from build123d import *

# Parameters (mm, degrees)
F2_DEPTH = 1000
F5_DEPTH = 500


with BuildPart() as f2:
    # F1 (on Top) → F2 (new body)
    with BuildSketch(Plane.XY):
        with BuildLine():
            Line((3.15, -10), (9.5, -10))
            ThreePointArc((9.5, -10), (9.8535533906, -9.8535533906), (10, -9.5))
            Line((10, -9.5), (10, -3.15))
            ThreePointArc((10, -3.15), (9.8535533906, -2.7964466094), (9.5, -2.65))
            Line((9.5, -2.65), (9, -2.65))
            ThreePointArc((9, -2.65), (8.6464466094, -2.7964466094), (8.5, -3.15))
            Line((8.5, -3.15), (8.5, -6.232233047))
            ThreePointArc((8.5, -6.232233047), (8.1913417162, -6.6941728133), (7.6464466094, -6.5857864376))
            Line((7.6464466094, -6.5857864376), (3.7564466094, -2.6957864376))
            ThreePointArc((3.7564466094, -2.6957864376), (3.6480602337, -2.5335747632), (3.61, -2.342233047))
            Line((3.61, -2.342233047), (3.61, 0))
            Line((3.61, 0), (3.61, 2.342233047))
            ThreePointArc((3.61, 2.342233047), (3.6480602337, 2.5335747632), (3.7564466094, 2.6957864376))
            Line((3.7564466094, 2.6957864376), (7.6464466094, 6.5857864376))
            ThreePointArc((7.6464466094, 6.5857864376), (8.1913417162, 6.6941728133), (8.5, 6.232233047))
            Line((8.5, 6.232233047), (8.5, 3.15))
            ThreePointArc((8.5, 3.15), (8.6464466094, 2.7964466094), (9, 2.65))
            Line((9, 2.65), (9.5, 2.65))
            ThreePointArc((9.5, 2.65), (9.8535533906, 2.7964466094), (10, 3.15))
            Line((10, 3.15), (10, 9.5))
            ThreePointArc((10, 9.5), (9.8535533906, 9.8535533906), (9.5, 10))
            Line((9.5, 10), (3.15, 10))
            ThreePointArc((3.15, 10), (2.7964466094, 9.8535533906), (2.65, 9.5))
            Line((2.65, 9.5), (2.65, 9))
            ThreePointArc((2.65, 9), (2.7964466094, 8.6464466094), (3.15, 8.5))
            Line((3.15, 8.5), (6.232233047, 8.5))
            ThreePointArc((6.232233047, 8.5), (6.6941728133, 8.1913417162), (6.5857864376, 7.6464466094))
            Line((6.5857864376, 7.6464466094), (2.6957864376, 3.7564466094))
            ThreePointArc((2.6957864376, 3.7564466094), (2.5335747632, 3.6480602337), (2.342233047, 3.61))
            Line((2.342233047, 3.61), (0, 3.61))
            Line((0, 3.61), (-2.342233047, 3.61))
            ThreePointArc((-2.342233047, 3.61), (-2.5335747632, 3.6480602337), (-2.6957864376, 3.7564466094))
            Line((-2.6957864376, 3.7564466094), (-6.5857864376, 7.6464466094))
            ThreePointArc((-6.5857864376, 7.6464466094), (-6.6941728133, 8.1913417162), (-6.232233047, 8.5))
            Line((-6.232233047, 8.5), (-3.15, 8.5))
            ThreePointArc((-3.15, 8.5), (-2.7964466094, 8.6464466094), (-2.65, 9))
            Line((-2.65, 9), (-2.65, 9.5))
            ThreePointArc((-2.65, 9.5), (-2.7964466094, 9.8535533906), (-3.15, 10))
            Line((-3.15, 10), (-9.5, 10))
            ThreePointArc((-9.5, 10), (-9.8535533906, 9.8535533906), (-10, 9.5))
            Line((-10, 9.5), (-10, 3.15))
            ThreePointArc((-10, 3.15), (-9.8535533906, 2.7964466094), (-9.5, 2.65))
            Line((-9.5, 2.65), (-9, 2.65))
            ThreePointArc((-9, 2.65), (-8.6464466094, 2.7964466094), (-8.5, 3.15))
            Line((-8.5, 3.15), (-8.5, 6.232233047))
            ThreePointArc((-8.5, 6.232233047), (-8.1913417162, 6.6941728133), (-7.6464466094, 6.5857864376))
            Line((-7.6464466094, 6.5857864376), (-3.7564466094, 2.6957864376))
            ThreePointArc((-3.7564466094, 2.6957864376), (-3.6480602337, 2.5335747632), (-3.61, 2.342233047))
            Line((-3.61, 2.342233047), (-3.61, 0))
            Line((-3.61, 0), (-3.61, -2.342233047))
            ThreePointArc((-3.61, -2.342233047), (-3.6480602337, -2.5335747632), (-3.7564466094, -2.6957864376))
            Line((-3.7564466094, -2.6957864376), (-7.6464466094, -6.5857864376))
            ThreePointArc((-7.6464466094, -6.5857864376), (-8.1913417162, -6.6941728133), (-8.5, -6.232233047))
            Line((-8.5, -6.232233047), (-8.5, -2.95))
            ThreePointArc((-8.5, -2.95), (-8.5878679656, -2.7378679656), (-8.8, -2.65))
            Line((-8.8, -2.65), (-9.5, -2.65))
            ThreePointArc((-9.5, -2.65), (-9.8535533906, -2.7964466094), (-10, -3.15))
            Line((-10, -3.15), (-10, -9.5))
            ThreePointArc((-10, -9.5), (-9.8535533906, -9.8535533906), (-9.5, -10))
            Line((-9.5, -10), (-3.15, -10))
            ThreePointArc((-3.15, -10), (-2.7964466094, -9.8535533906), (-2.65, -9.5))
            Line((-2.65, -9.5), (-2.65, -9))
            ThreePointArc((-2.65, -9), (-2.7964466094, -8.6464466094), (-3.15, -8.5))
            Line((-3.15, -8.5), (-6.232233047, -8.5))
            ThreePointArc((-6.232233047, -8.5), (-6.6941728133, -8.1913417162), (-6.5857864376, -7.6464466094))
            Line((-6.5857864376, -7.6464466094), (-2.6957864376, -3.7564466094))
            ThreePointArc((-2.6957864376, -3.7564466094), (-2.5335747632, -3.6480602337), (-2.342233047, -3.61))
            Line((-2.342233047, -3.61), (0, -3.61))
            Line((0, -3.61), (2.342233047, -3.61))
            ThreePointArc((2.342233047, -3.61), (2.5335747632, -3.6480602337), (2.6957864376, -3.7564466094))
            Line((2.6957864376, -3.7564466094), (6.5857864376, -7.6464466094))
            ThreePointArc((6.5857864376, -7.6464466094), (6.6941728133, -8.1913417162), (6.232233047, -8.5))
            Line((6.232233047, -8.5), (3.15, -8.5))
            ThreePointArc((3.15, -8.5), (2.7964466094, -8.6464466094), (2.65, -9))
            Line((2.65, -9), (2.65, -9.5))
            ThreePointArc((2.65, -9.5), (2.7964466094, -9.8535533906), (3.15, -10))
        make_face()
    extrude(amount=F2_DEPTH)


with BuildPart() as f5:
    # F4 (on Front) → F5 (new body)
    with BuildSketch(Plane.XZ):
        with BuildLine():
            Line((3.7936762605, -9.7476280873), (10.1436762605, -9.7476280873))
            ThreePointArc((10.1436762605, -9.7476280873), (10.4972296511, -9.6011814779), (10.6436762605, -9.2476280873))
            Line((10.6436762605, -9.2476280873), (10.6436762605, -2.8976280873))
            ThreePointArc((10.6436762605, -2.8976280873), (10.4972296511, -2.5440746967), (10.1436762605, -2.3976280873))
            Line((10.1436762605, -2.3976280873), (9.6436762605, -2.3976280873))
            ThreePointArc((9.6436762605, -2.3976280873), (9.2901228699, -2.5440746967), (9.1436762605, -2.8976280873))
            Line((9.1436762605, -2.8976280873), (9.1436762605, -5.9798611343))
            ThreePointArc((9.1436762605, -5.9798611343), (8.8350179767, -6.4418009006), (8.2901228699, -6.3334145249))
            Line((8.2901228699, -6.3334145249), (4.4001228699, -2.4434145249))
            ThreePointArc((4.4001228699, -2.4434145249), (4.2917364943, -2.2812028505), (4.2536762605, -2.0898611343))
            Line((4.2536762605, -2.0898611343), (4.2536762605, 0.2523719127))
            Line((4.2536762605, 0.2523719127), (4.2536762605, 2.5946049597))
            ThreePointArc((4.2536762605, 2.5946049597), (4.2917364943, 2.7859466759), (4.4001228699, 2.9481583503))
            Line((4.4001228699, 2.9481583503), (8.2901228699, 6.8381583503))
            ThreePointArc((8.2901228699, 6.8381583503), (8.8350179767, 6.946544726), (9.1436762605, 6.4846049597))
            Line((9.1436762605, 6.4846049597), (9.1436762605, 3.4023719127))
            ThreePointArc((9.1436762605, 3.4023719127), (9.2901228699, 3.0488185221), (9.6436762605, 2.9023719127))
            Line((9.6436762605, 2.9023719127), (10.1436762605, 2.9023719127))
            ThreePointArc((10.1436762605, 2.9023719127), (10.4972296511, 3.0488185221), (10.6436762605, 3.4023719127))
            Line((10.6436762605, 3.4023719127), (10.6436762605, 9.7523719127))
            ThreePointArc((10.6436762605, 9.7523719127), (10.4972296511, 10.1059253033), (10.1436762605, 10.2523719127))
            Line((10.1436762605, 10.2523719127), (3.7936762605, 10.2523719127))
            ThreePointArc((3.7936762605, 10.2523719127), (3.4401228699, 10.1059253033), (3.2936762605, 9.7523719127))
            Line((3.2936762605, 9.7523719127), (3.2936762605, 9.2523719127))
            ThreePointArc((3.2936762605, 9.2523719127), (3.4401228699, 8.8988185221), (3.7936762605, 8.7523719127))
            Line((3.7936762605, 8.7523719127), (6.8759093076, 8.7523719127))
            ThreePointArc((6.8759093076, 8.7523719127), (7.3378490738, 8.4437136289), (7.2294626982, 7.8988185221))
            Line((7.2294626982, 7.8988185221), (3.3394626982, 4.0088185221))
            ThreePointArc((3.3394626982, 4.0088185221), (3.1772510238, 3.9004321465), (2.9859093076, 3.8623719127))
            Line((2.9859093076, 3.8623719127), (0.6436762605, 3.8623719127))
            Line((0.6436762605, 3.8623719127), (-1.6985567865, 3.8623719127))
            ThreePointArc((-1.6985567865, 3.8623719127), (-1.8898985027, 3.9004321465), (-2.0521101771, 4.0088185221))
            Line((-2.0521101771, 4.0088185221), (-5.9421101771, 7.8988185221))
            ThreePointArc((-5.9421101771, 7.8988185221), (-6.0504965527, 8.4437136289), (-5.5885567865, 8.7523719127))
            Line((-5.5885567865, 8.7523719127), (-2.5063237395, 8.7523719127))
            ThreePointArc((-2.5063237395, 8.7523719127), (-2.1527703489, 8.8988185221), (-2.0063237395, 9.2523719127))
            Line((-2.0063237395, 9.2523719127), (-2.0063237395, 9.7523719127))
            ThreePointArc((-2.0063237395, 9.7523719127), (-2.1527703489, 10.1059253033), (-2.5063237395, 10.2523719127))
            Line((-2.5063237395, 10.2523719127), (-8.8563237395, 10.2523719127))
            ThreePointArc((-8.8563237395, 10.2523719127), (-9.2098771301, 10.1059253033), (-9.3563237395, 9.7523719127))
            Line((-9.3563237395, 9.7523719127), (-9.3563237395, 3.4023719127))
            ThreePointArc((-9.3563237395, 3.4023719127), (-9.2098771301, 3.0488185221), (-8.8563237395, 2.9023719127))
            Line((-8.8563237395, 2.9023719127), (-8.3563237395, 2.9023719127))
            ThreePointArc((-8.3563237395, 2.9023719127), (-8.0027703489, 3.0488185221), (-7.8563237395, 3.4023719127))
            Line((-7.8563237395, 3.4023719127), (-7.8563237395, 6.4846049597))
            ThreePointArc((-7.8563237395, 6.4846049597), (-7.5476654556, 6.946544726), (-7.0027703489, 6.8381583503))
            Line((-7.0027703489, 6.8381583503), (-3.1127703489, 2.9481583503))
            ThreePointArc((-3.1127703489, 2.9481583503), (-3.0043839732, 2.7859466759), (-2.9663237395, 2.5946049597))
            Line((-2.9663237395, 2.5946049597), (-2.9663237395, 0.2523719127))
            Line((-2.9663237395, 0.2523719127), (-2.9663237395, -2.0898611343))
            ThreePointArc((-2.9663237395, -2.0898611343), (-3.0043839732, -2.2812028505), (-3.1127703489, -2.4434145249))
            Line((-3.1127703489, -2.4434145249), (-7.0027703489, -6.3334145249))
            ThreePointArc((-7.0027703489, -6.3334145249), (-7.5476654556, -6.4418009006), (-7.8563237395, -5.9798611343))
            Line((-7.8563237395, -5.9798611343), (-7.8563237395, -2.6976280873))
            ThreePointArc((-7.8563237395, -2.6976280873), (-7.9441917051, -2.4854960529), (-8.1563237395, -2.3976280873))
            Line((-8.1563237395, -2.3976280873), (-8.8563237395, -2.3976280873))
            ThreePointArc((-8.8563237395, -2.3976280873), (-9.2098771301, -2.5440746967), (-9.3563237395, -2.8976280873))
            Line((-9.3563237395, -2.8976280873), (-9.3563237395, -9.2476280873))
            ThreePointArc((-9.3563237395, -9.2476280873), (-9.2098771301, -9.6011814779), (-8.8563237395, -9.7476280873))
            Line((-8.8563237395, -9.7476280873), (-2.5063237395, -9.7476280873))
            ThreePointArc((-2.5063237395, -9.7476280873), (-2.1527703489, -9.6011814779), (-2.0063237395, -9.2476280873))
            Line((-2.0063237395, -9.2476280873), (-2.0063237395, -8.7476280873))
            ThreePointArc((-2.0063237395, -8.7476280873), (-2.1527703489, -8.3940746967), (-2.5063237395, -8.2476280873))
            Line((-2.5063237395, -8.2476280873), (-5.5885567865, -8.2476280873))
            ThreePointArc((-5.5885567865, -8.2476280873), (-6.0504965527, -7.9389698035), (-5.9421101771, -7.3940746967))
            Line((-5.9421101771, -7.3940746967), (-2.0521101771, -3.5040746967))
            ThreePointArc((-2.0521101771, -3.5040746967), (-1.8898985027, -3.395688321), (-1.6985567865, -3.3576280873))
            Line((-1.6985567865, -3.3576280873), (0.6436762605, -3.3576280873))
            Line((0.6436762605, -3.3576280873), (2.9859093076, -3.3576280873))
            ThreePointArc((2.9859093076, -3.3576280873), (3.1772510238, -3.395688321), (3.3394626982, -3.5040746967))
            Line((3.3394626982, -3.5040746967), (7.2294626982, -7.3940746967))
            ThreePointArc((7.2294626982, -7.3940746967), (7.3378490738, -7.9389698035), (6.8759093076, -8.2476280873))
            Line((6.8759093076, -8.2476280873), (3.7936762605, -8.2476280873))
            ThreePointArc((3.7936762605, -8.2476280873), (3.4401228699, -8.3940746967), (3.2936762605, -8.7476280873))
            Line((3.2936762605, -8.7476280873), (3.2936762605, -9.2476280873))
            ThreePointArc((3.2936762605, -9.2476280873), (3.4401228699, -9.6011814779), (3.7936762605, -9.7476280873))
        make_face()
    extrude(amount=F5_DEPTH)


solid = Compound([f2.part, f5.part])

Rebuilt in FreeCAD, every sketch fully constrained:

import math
import FreeCAD as App
import Part
import Sketcher

doc = App.newDocument("Part")
params = doc.addObject("Spreadsheet::Sheet", "Params")
for row, (alias, value) in enumerate([
    ("sketch1_radius", "0.5 mm"),
    ("sketch1_radius2", "0.3 mm"),
    ("sketch1_width", "0.5 mm"),
    ("sketch1_width2", "6.35 mm"),
    ("pad1_length", "1000 mm"),
    ("sketch2_radius", "0.5 mm"),
    ("sketch2_radius2", "0.3 mm"),
    ("sketch2_width", "0.5 mm"),
    ("sketch2_width2", "6.35 mm"),
    ("pad2_length", "500 mm"),
], start=1):
    params.set(f"A{row}", alias)
    params.set(f"B{row}", "=" + value)
    params.setAlias(f"B{row}", alias)

body = doc.addObject("PartDesign::Body", "Body")

# Sketch on XY plane
sketch1 = body.newObject("Sketcher::SketchObject", "Sketch")
sketch1.AttachmentSupport = (doc.getObject("XY_Plane"), [""])
sketch1.MapMode = "FlatFace"
sketch1.addGeometry([
    Part.LineSegment(App.Vector(3.15, -10, 0), App.Vector(9.5, -10, 0)),  # 0
    Part.ArcOfCircle(Part.Circle(App.Vector(9.5, -9.5, 0), App.Vector(0, 0, 1), 0.5), math.radians(-90), math.radians(0)),  # 1
    Part.LineSegment(App.Vector(10, -9.5, 0), App.Vector(10, -3.15, 0)),  # 2
    Part.ArcOfCircle(Part.Circle(App.Vector(9.5, -3.15, 0), App.Vector(0, 0, 1), 0.5), math.radians(0), math.radians(90)),  # 3
    Part.LineSegment(App.Vector(9.5, -2.65, 0), App.Vector(9, -2.65, 0)),  # 4
    Part.ArcOfCircle(Part.Circle(App.Vector(9, -3.15, 0), App.Vector(0, 0, 1), 0.5), math.radians(90), math.radians(180)),  # 5
    Part.LineSegment(App.Vector(8.5, -3.15, 0), App.Vector(8.5, -6.232233, 0)),  # 6
    Part.ArcOfCircle(Part.Circle(App.Vector(8, -6.232233, 0), App.Vector(0, 0, 1), 0.5), math.radians(-135), math.radians(0)),  # 7
    Part.LineSegment(App.Vector(7.646447, -6.585786, 0), App.Vector(3.756447, -2.695786, 0)),  # 8
    Part.ArcOfCircle(Part.Circle(App.Vector(4.11, -2.342233, 0), App.Vector(0, 0, 1), 0.5), math.radians(180), math.radians(225)),  # 9
    Part.LineSegment(App.Vector(3.61, -2.342233, 0), App.Vector(3.61, 2.342233, 0)),  # 10
    Part.ArcOfCircle(Part.Circle(App.Vector(4.11, 2.342233, 0), App.Vector(0, 0, 1), 0.5), math.radians(135), math.radians(180)),  # 11
    Part.LineSegment(App.Vector(3.756447, 2.695786, 0), App.Vector(7.646447, 6.585786, 0)),  # 12
    Part.ArcOfCircle(Part.Circle(App.Vector(8, 6.232233, 0), App.Vector(0, 0, 1), 0.5), math.radians(0), math.radians(135)),  # 13
    Part.LineSegment(App.Vector(8.5, 6.232233, 0), App.Vector(8.5, 3.15, 0)),  # 14
    Part.ArcOfCircle(Part.Circle(App.Vector(9, 3.15, 0), App.Vector(0, 0, 1), 0.5), math.radians(180), math.radians(270)),  # 15
    Part.LineSegment(App.Vector(9, 2.65, 0), App.Vector(9.5, 2.65, 0)),  # 16
    Part.ArcOfCircle(Part.Circle(App.Vector(9.5, 3.15, 0), App.Vector(0, 0, 1), 0.5), math.radians(-90), math.radians(0)),  # 17
    Part.LineSegment(App.Vector(10, 3.15, 0), App.Vector(10, 9.5, 0)),  # 18
    Part.ArcOfCircle(Part.Circle(App.Vector(9.5, 9.5, 0), App.Vector(0, 0, 1), 0.5), math.radians(0), math.radians(90)),  # 19
    Part.LineSegment(App.Vector(9.5, 10, 0), App.Vector(3.15, 10, 0)),  # 20
    Part.ArcOfCircle(Part.Circle(App.Vector(3.15, 9.5, 0), App.Vector(0, 0, 1), 0.5), math.radians(90), math.radians(180)),  # 21
    Part.LineSegment(App.Vector(2.65, 9.5, 0), App.Vector(2.65, 9, 0)),  # 22
    Part.ArcOfCircle(Part.Circle(App.Vector(3.15, 9, 0), App.Vector(0, 0, 1), 0.5), math.radians(180), math.radians(270)),  # 23
    Part.LineSegment(App.Vector(3.15, 8.5, 0), App.Vector(6.232233, 8.5, 0)),  # 24
    Part.ArcOfCircle(Part.Circle(App.Vector(6.232233, 8, 0), App.Vector(0, 0, 1), 0.5), math.radians(-45), math.radians(90)),  # 25
    Part.LineSegment(App.Vector(6.585786, 7.646447, 0), App.Vector(2.695786, 3.756447, 0)),  # 26
    Part.ArcOfCircle(Part.Circle(App.Vector(2.342233, 4.11, 0), App.Vector(0, 0, 1), 0.5), math.radians(-90), math.radians(-45)),  # 27
    Part.LineSegment(App.Vector(2.342233, 3.61, 0), App.Vector(-2.342233, 3.61, 0)),  # 28
    Part.ArcOfCircle(Part.Circle(App.Vector(-2.342233, 4.11, 0), App.Vector(0, 0, 1), 0.5), math.radians(-135), math.radians(-90)),  # 29
    Part.LineSegment(App.Vector(-2.695786, 3.756447, 0), App.Vector(-6.585786, 7.646447, 0)),  # 30
    Part.ArcOfCircle(Part.Circle(App.Vector(-6.232233, 8, 0), App.Vector(0, 0, 1), 0.5), math.radians(90), math.radians(225)),  # 31
    Part.LineSegment(App.Vector(-6.232233, 8.5, 0), App.Vector(-3.15, 8.5, 0)),  # 32
    Part.ArcOfCircle(Part.Circle(App.Vector(-3.15, 9, 0), App.Vector(0, 0, 1), 0.5), math.radians(-90), math.radians(0)),  # 33
    Part.LineSegment(App.Vector(-2.65, 9, 0), App.Vector(-2.65, 9.5, 0)),  # 34
    Part.ArcOfCircle(Part.Circle(App.Vector(-3.15, 9.5, 0), App.Vector(0, 0, 1), 0.5), math.radians(0), math.radians(90)),  # 35
    Part.LineSegment(App.Vector(-3.15, 10, 0), App.Vector(-9.5, 10, 0)),  # 36
    Part.ArcOfCircle(Part.Circle(App.Vector(-9.5, 9.5, 0), App.Vector(0, 0, 1), 0.5), math.radians(90), math.radians(180)),  # 37
    Part.LineSegment(App.Vector(-10, 9.5, 0), App.Vector(-10, 3.15, 0)),  # 38
    Part.ArcOfCircle(Part.Circle(App.Vector(-9.5, 3.15, 0), App.Vector(0, 0, 1), 0.5), math.radians(180), math.radians(270)),  # 39
    Part.LineSegment(App.Vector(-9.5, 2.65, 0), App.Vector(-9, 2.65, 0)),  # 40
    Part.ArcOfCircle(Part.Circle(App.Vector(-9, 3.15, 0), App.Vector(0, 0, 1), 0.5), math.radians(-90), math.radians(0)),  # 41
    Part.LineSegment(App.Vector(-8.5, 3.15, 0), App.Vector(-8.5, 6.232233, 0)),  # 42
    Part.ArcOfCircle(Part.Circle(App.Vector(-8, 6.232233, 0), App.Vector(0, 0, 1), 0.5), math.radians(45), math.radians(180)),  # 43
    Part.LineSegment(App.Vector(-7.646447, 6.585786, 0), App.Vector(-3.756447, 2.695786, 0)),  # 44
    Part.ArcOfCircle(Part.Circle(App.Vector(-4.11, 2.342233, 0), App.Vector(0, 0, 1), 0.5), math.radians(0), math.radians(45)),  # 45
    Part.LineSegment(App.Vector(-3.61, 2.342233, 0), App.Vector(-3.61, -2.342233, 0)),  # 46
    Part.ArcOfCircle(Part.Circle(App.Vector(-4.11, -2.342233, 0), App.Vector(0, 0, 1), 0.5), math.radians(-45), math.radians(0)),  # 47
    Part.LineSegment(App.Vector(-3.756447, -2.695786, 0), App.Vector(-7.646447, -6.585786, 0)),  # 48
    Part.ArcOfCircle(Part.Circle(App.Vector(-8, -6.232233, 0), App.Vector(0, 0, 1), 0.5), math.radians(180), math.radians(315)),  # 49
    Part.LineSegment(App.Vector(-8.5, -6.232233, 0), App.Vector(-8.5, -2.95, 0)),  # 50
    Part.ArcOfCircle(Part.Circle(App.Vector(-8.8, -2.95, 0), App.Vector(0, 0, 1), 0.3), math.radians(0), math.radians(90)),  # 51
    Part.LineSegment(App.Vector(-8.8, -2.65, 0), App.Vector(-9.5, -2.65, 0)),  # 52
    Part.ArcOfCircle(Part.Circle(App.Vector(-9.5, -3.15, 0), App.Vector(0, 0, 1), 0.5), math.radians(90), math.radians(180)),  # 53
    Part.LineSegment(App.Vector(-10, -3.15, 0), App.Vector(-10, -9.5, 0)),  # 54
    Part.ArcOfCircle(Part.Circle(App.Vector(-9.5, -9.5, 0), App.Vector(0, 0, 1), 0.5), math.radians(180), math.radians(270)),  # 55
    Part.LineSegment(App.Vector(-9.5, -10, 0), App.Vector(-3.15, -10, 0)),  # 56
    Part.ArcOfCircle(Part.Circle(App.Vector(-3.15, -9.5, 0), App.Vector(0, 0, 1), 0.5), math.radians(-90), math.radians(0)),  # 57
    Part.LineSegment(App.Vector(-2.65, -9.5, 0), App.Vector(-2.65, -9, 0)),  # 58
    Part.ArcOfCircle(Part.Circle(App.Vector(-3.15, -9, 0), App.Vector(0, 0, 1), 0.5), math.radians(0), math.radians(90)),  # 59
    Part.LineSegment(App.Vector(-3.15, -8.5, 0), App.Vector(-6.232233, -8.5, 0)),  # 60
    Part.ArcOfCircle(Part.Circle(App.Vector(-6.232233, -8, 0), App.Vector(0, 0, 1), 0.5), math.radians(135), math.radians(270)),  # 61
    Part.LineSegment(App.Vector(-6.585786, -7.646447, 0), App.Vector(-2.695786, -3.756447, 0)),  # 62
    Part.ArcOfCircle(Part.Circle(App.Vector(-2.342233, -4.11, 0), App.Vector(0, 0, 1), 0.5), math.radians(90), math.radians(135)),  # 63
    Part.LineSegment(App.Vector(-2.342233, -3.61, 0), App.Vector(2.342233, -3.61, 0)),  # 64
    Part.ArcOfCircle(Part.Circle(App.Vector(2.342233, -4.11, 0), App.Vector(0, 0, 1), 0.5), math.radians(45), math.radians(90)),  # 65
    Part.LineSegment(App.Vector(2.695786, -3.756447, 0), App.Vector(6.585786, -7.646447, 0)),  # 66
    Part.ArcOfCircle(Part.Circle(App.Vector(6.232233, -8, 0), App.Vector(0, 0, 1), 0.5), math.radians(-90), math.radians(45)),  # 67
    Part.LineSegment(App.Vector(6.232233, -8.5, 0), App.Vector(3.15, -8.5, 0)),  # 68
    Part.ArcOfCircle(Part.Circle(App.Vector(3.15, -9, 0), App.Vector(0, 0, 1), 0.5), math.radians(90), math.radians(180)),  # 69
    Part.LineSegment(App.Vector(2.65, -9, 0), App.Vector(2.65, -9.5, 0)),  # 70
    Part.ArcOfCircle(Part.Circle(App.Vector(3.15, -9.5, 0), App.Vector(0, 0, 1), 0.5), math.radians(180), math.radians(270)),  # 71
], False)
sketch1.addConstraint([
    Sketcher.Constraint("Tangent", 0, 2, 1, 1),
    Sketcher.Constraint("Tangent", 1, 2, 2, 1),
    Sketcher.Constraint("Tangent", 2, 2, 3, 1),
    Sketcher.Constraint("Tangent", 3, 2, 4, 1),
    Sketcher.Constraint("Tangent", 4, 2, 5, 1),
    Sketcher.Constraint("Tangent", 5, 2, 6, 1),
    Sketcher.Constraint("Tangent", 6, 2, 7, 2),
    Sketcher.Constraint("Tangent", 7, 1, 8, 1),
    Sketcher.Constraint("Tangent", 8, 2, 9, 2),
    Sketcher.Constraint("Tangent", 9, 1, 10, 1),
    Sketcher.Constraint("Tangent", 10, 2, 11, 2),
    Sketcher.Constraint("Tangent", 11, 1, 12, 1),
    Sketcher.Constraint("Tangent", 12, 2, 13, 2),
    Sketcher.Constraint("Tangent", 13, 1, 14, 1),
    Sketcher.Constraint("Tangent", 14, 2, 15, 1),
    Sketcher.Constraint("Tangent", 15, 2, 16, 1),
    Sketcher.Constraint("Tangent", 16, 2, 17, 1),
    Sketcher.Constraint("Tangent", 17, 2, 18, 1),
    Sketcher.Constraint("Tangent", 18, 2, 19, 1),
    Sketcher.Constraint("Tangent", 19, 2, 20, 1),
    Sketcher.Constraint("Tangent", 20, 2, 21, 1),
    Sketcher.Constraint("Tangent", 21, 2, 22, 1),
    Sketcher.Constraint("Tangent", 22, 2, 23, 1),
    Sketcher.Constraint("Tangent", 23, 2, 24, 1),
    Sketcher.Constraint("Tangent", 24, 2, 25, 2),
    Sketcher.Constraint("Tangent", 25, 1, 26, 1),
    Sketcher.Constraint("Tangent", 26, 2, 27, 2),
    Sketcher.Constraint("Tangent", 27, 1, 28, 1),
    Sketcher.Constraint("Tangent", 28, 2, 29, 2),
    Sketcher.Constraint("Tangent", 29, 1, 30, 1),
    Sketcher.Constraint("Tangent", 30, 2, 31, 2),
    Sketcher.Constraint("Tangent", 31, 1, 32, 1),
    Sketcher.Constraint("Tangent", 32, 2, 33, 1),
    Sketcher.Constraint("Tangent", 33, 2, 34, 1),
    Sketcher.Constraint("Tangent", 34, 2, 35, 1),
    Sketcher.Constraint("Tangent", 35, 2, 36, 1),
    Sketcher.Constraint("Tangent", 36, 2, 37, 1),
    Sketcher.Constraint("Tangent", 37, 2, 38, 1),
    Sketcher.Constraint("Tangent", 38, 2, 39, 1),
    Sketcher.Constraint("Tangent", 39, 2, 40, 1),
    Sketcher.Constraint("Tangent", 40, 2, 41, 1),
    Sketcher.Constraint("Tangent", 41, 2, 42, 1),
    Sketcher.Constraint("Tangent", 42, 2, 43, 2),
    Sketcher.Constraint("Tangent", 43, 1, 44, 1),
    Sketcher.Constraint("Tangent", 44, 2, 45, 2),
    Sketcher.Constraint("Tangent", 45, 1, 46, 1),
    Sketcher.Constraint("Tangent", 46, 2, 47, 2),
    Sketcher.Constraint("Tangent", 47, 1, 48, 1),
    Sketcher.Constraint("Tangent", 48, 2, 49, 2),
    Sketcher.Constraint("Tangent", 49, 1, 50, 1),
    Sketcher.Constraint("Tangent", 50, 2, 51, 1),
    Sketcher.Constraint("Tangent", 51, 2, 52, 1),
    Sketcher.Constraint("Tangent", 52, 2, 53, 1),
    Sketcher.Constraint("Tangent", 53, 2, 54, 1),
    Sketcher.Constraint("Tangent", 54, 2, 55, 1),
    Sketcher.Constraint("Tangent", 55, 2, 56, 1),
    Sketcher.Constraint("Tangent", 56, 2, 57, 1),
    Sketcher.Constraint("Tangent", 57, 2, 58, 1),
    Sketcher.Constraint("Tangent", 58, 2, 59, 1),
    Sketcher.Constraint("Tangent", 59, 2, 60, 1),
    Sketcher.Constraint("Tangent", 60, 2, 61, 2),
    Sketcher.Constraint("Tangent", 61, 1, 62, 1),
    Sketcher.Constraint("Tangent", 62, 2, 63, 2),
    Sketcher.Constraint("Tangent", 63, 1, 64, 1),
    Sketcher.Constraint("Tangent", 64, 2, 65, 2),
    Sketcher.Constraint("Tangent", 65, 1, 66, 1),
    Sketcher.Constraint("Tangent", 66, 2, 67, 2),
    Sketcher.Constraint("Tangent", 67, 1, 68, 1),
    Sketcher.Constraint("Tangent", 68, 2, 69, 1),
    Sketcher.Constraint("Tangent", 69, 2, 70, 1),
    Sketcher.Constraint("Tangent", 70, 2, 71, 1),
    Sketcher.Constraint("Tangent", 71, 2, 0, 1),
    Sketcher.Constraint("Horizontal", 0),
    Sketcher.Constraint("Vertical", 2),
    Sketcher.Constraint("Horizontal", 4),
    Sketcher.Constraint("Vertical", 6),
    Sketcher.Constraint("Vertical", 10),
    Sketcher.Constraint("Vertical", 14),
    Sketcher.Constraint("Horizontal", 16),
    Sketcher.Constraint("Vertical", 18),
    Sketcher.Constraint("Horizontal", 20),
    Sketcher.Constraint("Vertical", 22),
    Sketcher.Constraint("Horizontal", 24),
    Sketcher.Constraint("Horizontal", 28),
    Sketcher.Constraint("Horizontal", 32),
    Sketcher.Constraint("Vertical", 34),
    Sketcher.Constraint("Horizontal", 36),
    Sketcher.Constraint("Vertical", 38),
    Sketcher.Constraint("Horizontal", 40),
    Sketcher.Constraint("Vertical", 42),
    Sketcher.Constraint("Vertical", 46),
    Sketcher.Constraint("Vertical", 50),
    Sketcher.Constraint("Horizontal", 52),
    Sketcher.Constraint("Vertical", 54),
    Sketcher.Constraint("Horizontal", 56),
    Sketcher.Constraint("Vertical", 58),
    Sketcher.Constraint("Horizontal", 60),
    Sketcher.Constraint("Horizontal", 64),
    Sketcher.Constraint("Horizontal", 68),
    Sketcher.Constraint("Vertical", 70),
    Sketcher.Constraint("Equal", 1, 3),
    Sketcher.Constraint("Equal", 3, 5),
    Sketcher.Constraint("Equal", 5, 7),
    Sketcher.Constraint("Equal", 7, 9),
    Sketcher.Constraint("Equal", 9, 11),
    Sketcher.Constraint("Equal", 11, 13),
    Sketcher.Constraint("Equal", 13, 15),
    Sketcher.Constraint("Equal", 15, 17),
    Sketcher.Constraint("Equal", 17, 19),
    Sketcher.Constraint("Equal", 19, 21),
    Sketcher.Constraint("Equal", 21, 23),
    Sketcher.Constraint("Equal", 23, 25),
    Sketcher.Constraint("Equal", 25, 27),
    Sketcher.Constraint("Equal", 27, 29),
    Sketcher.Constraint("Equal", 29, 31),
    Sketcher.Constraint("Equal", 31, 33),
    Sketcher.Constraint("Equal", 33, 35),
    Sketcher.Constraint("Equal", 35, 37),
    Sketcher.Constraint("Equal", 37, 39),
    Sketcher.Constraint("Equal", 39, 41),
    Sketcher.Constraint("Equal", 41, 43),
    Sketcher.Constraint("Equal", 43, 45),
    Sketcher.Constraint("Equal", 45, 47),
    Sketcher.Constraint("Equal", 47, 49),
    Sketcher.Constraint("Equal", 49, 53),
    Sketcher.Constraint("Equal", 53, 55),
    Sketcher.Constraint("Equal", 55, 57),
    Sketcher.Constraint("Equal", 57, 59),
    Sketcher.Constraint("Equal", 59, 61),
    Sketcher.Constraint("Equal", 61, 63),
    Sketcher.Constraint("Equal", 63, 65),
    Sketcher.Constraint("Equal", 65, 67),
    Sketcher.Constraint("Equal", 67, 69),
    Sketcher.Constraint("Equal", 69, 71),
    Sketcher.Constraint("Symmetric", 1, 3, 37, 3, -1, 1),
    Sketcher.Constraint("Symmetric", 5, 3, 41, 3, -1, 1),
    Sketcher.Constraint("Symmetric", 9, 3, 45, 3, -1, 1),
    Sketcher.Constraint("Symmetric", 13, 3, 49, 3, -1, 1),
    Sketcher.Constraint("Symmetric", 17, 3, 53, 3, -1, 1),
    Sketcher.Constraint("Symmetric", 21, 3, 57, 3, -1, 1),
    Sketcher.Constraint("Symmetric", 25, 3, 61, 3, -1, 1),
    Sketcher.Constraint("Symmetric", 27, 3, 63, 3, -1, 1),
    Sketcher.Constraint("Symmetric", 31, 3, 67, 3, -1, 1),
    Sketcher.Constraint("Symmetric", 25, 3, 31, 3, -2),
    Sketcher.Constraint("Symmetric", 21, 3, 35, 3, -2),
    Sketcher.Constraint("Symmetric", 17, 3, 39, 3, -2),
    Sketcher.Constraint("Symmetric", 13, 3, 43, 3, -2),
    Sketcher.Constraint("Symmetric", 8, 2, 47, 1, -2),
    Sketcher.Constraint("Perpendicular", 8, 12),
    Sketcher.Constraint("Parallel", 12, 26),
    Sketcher.Constraint("Perpendicular", 26, 30),
    Sketcher.Constraint("Perpendicular", 44, 48),
    Sketcher.Constraint("Perpendicular", 62, 66),
    Sketcher.Constraint("Vertical", 23, 3, 69, 3),
    Sketcher.Constraint("Equal", 56, 2),
    Sketcher.Constraint("Equal", 68, 6),
    Sketcher.Constraint("Equal", 64, 10),
    Sketcher.Constraint("Equal", 40, 22),
    Sketcher.Constraint("Equal", 12, 26),
    Sketcher.Constraint("Radius", 1, 0.5),
    Sketcher.Constraint("Radius", 51, 0.3),
    Sketcher.Constraint("DistanceX", 4, 2, 4, 1, 0.5),
    Sketcher.Constraint("DistanceX", -1, 1, 5, 3, 9.0),
    Sketcher.Constraint("DistanceX", 0, 1, 0, 2, 6.35),
    Sketcher.Constraint("DistanceX", -1, 1, 9, 3, 4.11),
    Sketcher.Constraint("DistanceX", 24, 1, 24, 2, 3.082233),
])
sketch1.setExpression("Constraints[159]", "Params.sketch1_radius")
sketch1.setExpression("Constraints[160]", "Params.sketch1_radius2")
sketch1.setExpression("Constraints[161]", "Params.sketch1_width")
sketch1.setExpression("Constraints[163]", "Params.sketch1_width2")
pad1 = body.newObject("PartDesign::Pad", "Pad")
pad1.Profile = sketch1
pad1.setExpression("Length", "Params.pad1_length")
body2 = doc.addObject("PartDesign::Body", "Body001")

# Sketch on XZ plane
sketch2 = body2.newObject("Sketcher::SketchObject", "Sketch001")
sketch2.AttachmentSupport = (doc.getObject("XZ_Plane001"), [""])
sketch2.MapMode = "FlatFace"
sketch2.addGeometry([
    Part.LineSegment(App.Vector(3.793676, -9.747628, 0), App.Vector(10.143676, -9.747628, 0)),  # 0
    Part.ArcOfCircle(Part.Circle(App.Vector(10.143676, -9.247628, 0), App.Vector(0, 0, 1), 0.5), math.radians(-90), math.radians(0)),  # 1
    Part.LineSegment(App.Vector(10.643676, -9.247628, 0), App.Vector(10.643676, -2.897628, 0)),  # 2
    Part.ArcOfCircle(Part.Circle(App.Vector(10.143676, -2.897628, 0), App.Vector(0, 0, 1), 0.5), math.radians(0), math.radians(90)),  # 3
    Part.LineSegment(App.Vector(10.143676, -2.397628, 0), App.Vector(9.643676, -2.397628, 0)),  # 4
    Part.ArcOfCircle(Part.Circle(App.Vector(9.643676, -2.897628, 0), App.Vector(0, 0, 1), 0.5), math.radians(90), math.radians(180)),  # 5
    Part.LineSegment(App.Vector(9.143676, -2.897628, 0), App.Vector(9.143676, -5.979861, 0)),  # 6
    Part.ArcOfCircle(Part.Circle(App.Vector(8.643676, -5.979861, 0), App.Vector(0, 0, 1), 0.5), math.radians(-135), math.radians(0)),  # 7
    Part.LineSegment(App.Vector(8.290123, -6.333415, 0), App.Vector(4.400123, -2.443415, 0)),  # 8
    Part.ArcOfCircle(Part.Circle(App.Vector(4.753676, -2.089861, 0), App.Vector(0, 0, 1), 0.5), math.radians(180), math.radians(225)),  # 9
    Part.LineSegment(App.Vector(4.253676, -2.089861, 0), App.Vector(4.253676, 2.594605, 0)),  # 10
    Part.ArcOfCircle(Part.Circle(App.Vector(4.753676, 2.594605, 0), App.Vector(0, 0, 1), 0.5), math.radians(135), math.radians(180)),  # 11
    Part.LineSegment(App.Vector(4.400123, 2.948158, 0), App.Vector(8.290123, 6.838158, 0)),  # 12
    Part.ArcOfCircle(Part.Circle(App.Vector(8.643676, 6.484605, 0), App.Vector(0, 0, 1), 0.5), math.radians(0), math.radians(135)),  # 13
    Part.LineSegment(App.Vector(9.143676, 6.484605, 0), App.Vector(9.143676, 3.402372, 0)),  # 14
    Part.ArcOfCircle(Part.Circle(App.Vector(9.643676, 3.402372, 0), App.Vector(0, 0, 1), 0.5), math.radians(180), math.radians(270)),  # 15
    Part.LineSegment(App.Vector(9.643676, 2.902372, 0), App.Vector(10.143676, 2.902372, 0)),  # 16
    Part.ArcOfCircle(Part.Circle(App.Vector(10.143676, 3.402372, 0), App.Vector(0, 0, 1), 0.5), math.radians(-90), math.radians(0)),  # 17
    Part.LineSegment(App.Vector(10.643676, 3.402372, 0), App.Vector(10.643676, 9.752372, 0)),  # 18
    Part.ArcOfCircle(Part.Circle(App.Vector(10.143676, 9.752372, 0), App.Vector(0, 0, 1), 0.5), math.radians(0), math.radians(90)),  # 19
    Part.LineSegment(App.Vector(10.143676, 10.252372, 0), App.Vector(3.793676, 10.252372, 0)),  # 20
    Part.ArcOfCircle(Part.Circle(App.Vector(3.793676, 9.752372, 0), App.Vector(0, 0, 1), 0.5), math.radians(90), math.radians(180)),  # 21
    Part.LineSegment(App.Vector(3.293676, 9.752372, 0), App.Vector(3.293676, 9.252372, 0)),  # 22
    Part.ArcOfCircle(Part.Circle(App.Vector(3.793676, 9.252372, 0), App.Vector(0, 0, 1), 0.5), math.radians(180), math.radians(270)),  # 23
    Part.LineSegment(App.Vector(3.793676, 8.752372, 0), App.Vector(6.875909, 8.752372, 0)),  # 24
    Part.ArcOfCircle(Part.Circle(App.Vector(6.875909, 8.252372, 0), App.Vector(0, 0, 1), 0.5), math.radians(-45), math.radians(90)),  # 25
    Part.LineSegment(App.Vector(7.229463, 7.898819, 0), App.Vector(3.339463, 4.008819, 0)),  # 26
    Part.ArcOfCircle(Part.Circle(App.Vector(2.985909, 4.362372, 0), App.Vector(0, 0, 1), 0.5), math.radians(-90), math.radians(-45)),  # 27
    Part.LineSegment(App.Vector(2.985909, 3.862372, 0), App.Vector(-1.698557, 3.862372, 0)),  # 28
    Part.ArcOfCircle(Part.Circle(App.Vector(-1.698557, 4.362372, 0), App.Vector(0, 0, 1), 0.5), math.radians(-135), math.radians(-90)),  # 29
    Part.LineSegment(App.Vector(-2.05211, 4.008819, 0), App.Vector(-5.94211, 7.898819, 0)),  # 30
    Part.ArcOfCircle(Part.Circle(App.Vector(-5.588557, 8.252372, 0), App.Vector(0, 0, 1), 0.5), math.radians(90), math.radians(225)),  # 31
    Part.LineSegment(App.Vector(-5.588557, 8.752372, 0), App.Vector(-2.506324, 8.752372, 0)),  # 32
    Part.ArcOfCircle(Part.Circle(App.Vector(-2.506324, 9.252372, 0), App.Vector(0, 0, 1), 0.5), math.radians(-90), math.radians(0)),  # 33
    Part.LineSegment(App.Vector(-2.006324, 9.252372, 0), App.Vector(-2.006324, 9.752372, 0)),  # 34
    Part.ArcOfCircle(Part.Circle(App.Vector(-2.506324, 9.752372, 0), App.Vector(0, 0, 1), 0.5), math.radians(0), math.radians(90)),  # 35
    Part.LineSegment(App.Vector(-2.506324, 10.252372, 0), App.Vector(-8.856324, 10.252372, 0)),  # 36
    Part.ArcOfCircle(Part.Circle(App.Vector(-8.856324, 9.752372, 0), App.Vector(0, 0, 1), 0.5), math.radians(90), math.radians(180)),  # 37
    Part.LineSegment(App.Vector(-9.356324, 9.752372, 0), App.Vector(-9.356324, 3.402372, 0)),  # 38
    Part.ArcOfCircle(Part.Circle(App.Vector(-8.856324, 3.402372, 0), App.Vector(0, 0, 1), 0.5), math.radians(180), math.radians(270)),  # 39
    Part.LineSegment(App.Vector(-8.856324, 2.902372, 0), App.Vector(-8.356324, 2.902372, 0)),  # 40
    Part.ArcOfCircle(Part.Circle(App.Vector(-8.356324, 3.402372, 0), App.Vector(0, 0, 1), 0.5), math.radians(-90), math.radians(0)),  # 41
    Part.LineSegment(App.Vector(-7.856324, 3.402372, 0), App.Vector(-7.856324, 6.484605, 0)),  # 42
    Part.ArcOfCircle(Part.Circle(App.Vector(-7.356324, 6.484605, 0), App.Vector(0, 0, 1), 0.5), math.radians(45), math.radians(180)),  # 43
    Part.LineSegment(App.Vector(-7.00277, 6.838158, 0), App.Vector(-3.11277, 2.948158, 0)),  # 44
    Part.ArcOfCircle(Part.Circle(App.Vector(-3.466324, 2.594605, 0), App.Vector(0, 0, 1), 0.5), math.radians(0), math.radians(45)),  # 45
    Part.LineSegment(App.Vector(-2.966324, 2.594605, 0), App.Vector(-2.966324, -2.089861, 0)),  # 46
    Part.ArcOfCircle(Part.Circle(App.Vector(-3.466324, -2.089861, 0), App.Vector(0, 0, 1), 0.5), math.radians(-45), math.radians(0)),  # 47
    Part.LineSegment(App.Vector(-3.11277, -2.443415, 0), App.Vector(-7.00277, -6.333415, 0)),  # 48
    Part.ArcOfCircle(Part.Circle(App.Vector(-7.356324, -5.979861, 0), App.Vector(0, 0, 1), 0.5), math.radians(180), math.radians(315)),  # 49
    Part.LineSegment(App.Vector(-7.856324, -5.979861, 0), App.Vector(-7.856324, -2.697628, 0)),  # 50
    Part.ArcOfCircle(Part.Circle(App.Vector(-8.156324, -2.697628, 0), App.Vector(0, 0, 1), 0.3), math.radians(0), math.radians(90)),  # 51
    Part.LineSegment(App.Vector(-8.156324, -2.397628, 0), App.Vector(-8.856324, -2.397628, 0)),  # 52
    Part.ArcOfCircle(Part.Circle(App.Vector(-8.856324, -2.897628, 0), App.Vector(0, 0, 1), 0.5), math.radians(90), math.radians(180)),  # 53
    Part.LineSegment(App.Vector(-9.356324, -2.897628, 0), App.Vector(-9.356324, -9.247628, 0)),  # 54
    Part.ArcOfCircle(Part.Circle(App.Vector(-8.856324, -9.247628, 0), App.Vector(0, 0, 1), 0.5), math.radians(180), math.radians(270)),  # 55
    Part.LineSegment(App.Vector(-8.856324, -9.747628, 0), App.Vector(-2.506324, -9.747628, 0)),  # 56
    Part.ArcOfCircle(Part.Circle(App.Vector(-2.506324, -9.247628, 0), App.Vector(0, 0, 1), 0.5), math.radians(-90), math.radians(0)),  # 57
    Part.LineSegment(App.Vector(-2.006324, -9.247628, 0), App.Vector(-2.006324, -8.747628, 0)),  # 58
    Part.ArcOfCircle(Part.Circle(App.Vector(-2.506324, -8.747628, 0), App.Vector(0, 0, 1), 0.5), math.radians(0), math.radians(90)),  # 59
    Part.LineSegment(App.Vector(-2.506324, -8.247628, 0), App.Vector(-5.588557, -8.247628, 0)),  # 60
    Part.ArcOfCircle(Part.Circle(App.Vector(-5.588557, -7.747628, 0), App.Vector(0, 0, 1), 0.5), math.radians(135), math.radians(270)),  # 61
    Part.LineSegment(App.Vector(-5.94211, -7.394075, 0), App.Vector(-2.05211, -3.504075, 0)),  # 62
    Part.ArcOfCircle(Part.Circle(App.Vector(-1.698557, -3.857628, 0), App.Vector(0, 0, 1), 0.5), math.radians(90), math.radians(135)),  # 63
    Part.LineSegment(App.Vector(-1.698557, -3.357628, 0), App.Vector(2.985909, -3.357628, 0)),  # 64
    Part.ArcOfCircle(Part.Circle(App.Vector(2.985909, -3.857628, 0), App.Vector(0, 0, 1), 0.5), math.radians(45), math.radians(90)),  # 65
    Part.LineSegment(App.Vector(3.339463, -3.504075, 0), App.Vector(7.229463, -7.394075, 0)),  # 66
    Part.ArcOfCircle(Part.Circle(App.Vector(6.875909, -7.747628, 0), App.Vector(0, 0, 1), 0.5), math.radians(-90), math.radians(45)),  # 67
    Part.LineSegment(App.Vector(6.875909, -8.247628, 0), App.Vector(3.793676, -8.247628, 0)),  # 68
    Part.ArcOfCircle(Part.Circle(App.Vector(3.793676, -8.747628, 0), App.Vector(0, 0, 1), 0.5), math.radians(90), math.radians(180)),  # 69
    Part.LineSegment(App.Vector(3.293676, -8.747628, 0), App.Vector(3.293676, -9.247628, 0)),  # 70
    Part.ArcOfCircle(Part.Circle(App.Vector(3.793676, -9.247628, 0), App.Vector(0, 0, 1), 0.5), math.radians(180), math.radians(270)),  # 71
], False)
sketch2.addConstraint([
    Sketcher.Constraint("Tangent", 0, 2, 1, 1),
    Sketcher.Constraint("Tangent", 1, 2, 2, 1),
    Sketcher.Constraint("Tangent", 2, 2, 3, 1),
    Sketcher.Constraint("Tangent", 3, 2, 4, 1),
    Sketcher.Constraint("Tangent", 4, 2, 5, 1),
    Sketcher.Constraint("Tangent", 5, 2, 6, 1),
    Sketcher.Constraint("Tangent", 6, 2, 7, 2),
    Sketcher.Constraint("Tangent", 7, 1, 8, 1),
    Sketcher.Constraint("Tangent", 8, 2, 9, 2),
    Sketcher.Constraint("Tangent", 9, 1, 10, 1),
    Sketcher.Constraint("Tangent", 10, 2, 11, 2),
    Sketcher.Constraint("Tangent", 11, 1, 12, 1),
    Sketcher.Constraint("Tangent", 12, 2, 13, 2),
    Sketcher.Constraint("Tangent", 13, 1, 14, 1),
    Sketcher.Constraint("Tangent", 14, 2, 15, 1),
    Sketcher.Constraint("Tangent", 15, 2, 16, 1),
    Sketcher.Constraint("Tangent", 16, 2, 17, 1),
    Sketcher.Constraint("Tangent", 17, 2, 18, 1),
    Sketcher.Constraint("Tangent", 18, 2, 19, 1),
    Sketcher.Constraint("Tangent", 19, 2, 20, 1),
    Sketcher.Constraint("Tangent", 20, 2, 21, 1),
    Sketcher.Constraint("Tangent", 21, 2, 22, 1),
    Sketcher.Constraint("Tangent", 22, 2, 23, 1),
    Sketcher.Constraint("Tangent", 23, 2, 24, 1),
    Sketcher.Constraint("Tangent", 24, 2, 25, 2),
    Sketcher.Constraint("Tangent", 25, 1, 26, 1),
    Sketcher.Constraint("Tangent", 26, 2, 27, 2),
    Sketcher.Constraint("Tangent", 27, 1, 28, 1),
    Sketcher.Constraint("Tangent", 28, 2, 29, 2),
    Sketcher.Constraint("Tangent", 29, 1, 30, 1),
    Sketcher.Constraint("Tangent", 30, 2, 31, 2),
    Sketcher.Constraint("Tangent", 31, 1, 32, 1),
    Sketcher.Constraint("Tangent", 32, 2, 33, 1),
    Sketcher.Constraint("Tangent", 33, 2, 34, 1),
    Sketcher.Constraint("Tangent", 34, 2, 35, 1),
    Sketcher.Constraint("Tangent", 35, 2, 36, 1),
    Sketcher.Constraint("Tangent", 36, 2, 37, 1),
    Sketcher.Constraint("Tangent", 37, 2, 38, 1),
    Sketcher.Constraint("Tangent", 38, 2, 39, 1),
    Sketcher.Constraint("Tangent", 39, 2, 40, 1),
    Sketcher.Constraint("Tangent", 40, 2, 41, 1),
    Sketcher.Constraint("Tangent", 41, 2, 42, 1),
    Sketcher.Constraint("Tangent", 42, 2, 43, 2),
    Sketcher.Constraint("Tangent", 43, 1, 44, 1),
    Sketcher.Constraint("Tangent", 44, 2, 45, 2),
    Sketcher.Constraint("Tangent", 45, 1, 46, 1),
    Sketcher.Constraint("Tangent", 46, 2, 47, 2),
    Sketcher.Constraint("Tangent", 47, 1, 48, 1),
    Sketcher.Constraint("Tangent", 48, 2, 49, 2),
    Sketcher.Constraint("Tangent", 49, 1, 50, 1),
    Sketcher.Constraint("Tangent", 50, 2, 51, 1),
    Sketcher.Constraint("Tangent", 51, 2, 52, 1),
    Sketcher.Constraint("Tangent", 52, 2, 53, 1),
    Sketcher.Constraint("Tangent", 53, 2, 54, 1),
    Sketcher.Constraint("Tangent", 54, 2, 55, 1),
    Sketcher.Constraint("Tangent", 55, 2, 56, 1),
    Sketcher.Constraint("Tangent", 56, 2, 57, 1),
    Sketcher.Constraint("Tangent", 57, 2, 58, 1),
    Sketcher.Constraint("Tangent", 58, 2, 59, 1),
    Sketcher.Constraint("Tangent", 59, 2, 60, 1),
    Sketcher.Constraint("Tangent", 60, 2, 61, 2),
    Sketcher.Constraint("Tangent", 61, 1, 62, 1),
    Sketcher.Constraint("Tangent", 62, 2, 63, 2),
    Sketcher.Constraint("Tangent", 63, 1, 64, 1),
    Sketcher.Constraint("Tangent", 64, 2, 65, 2),
    Sketcher.Constraint("Tangent", 65, 1, 66, 1),
    Sketcher.Constraint("Tangent", 66, 2, 67, 2),
    Sketcher.Constraint("Tangent", 67, 1, 68, 1),
    Sketcher.Constraint("Tangent", 68, 2, 69, 1),
    Sketcher.Constraint("Tangent", 69, 2, 70, 1),
    Sketcher.Constraint("Tangent", 70, 2, 71, 1),
    Sketcher.Constraint("Tangent", 71, 2, 0, 1),
    Sketcher.Constraint("Horizontal", 0),
    Sketcher.Constraint("Vertical", 2),
    Sketcher.Constraint("Horizontal", 4),
    Sketcher.Constraint("Vertical", 6),
    Sketcher.Constraint("Vertical", 10),
    Sketcher.Constraint("Vertical", 14),
    Sketcher.Constraint("Horizontal", 16),
    Sketcher.Constraint("Vertical", 18),
    Sketcher.Constraint("Horizontal", 20),
    Sketcher.Constraint("Vertical", 22),
    Sketcher.Constraint("Horizontal", 24),
    Sketcher.Constraint("Horizontal", 28),
    Sketcher.Constraint("Horizontal", 32),
    Sketcher.Constraint("Vertical", 34),
    Sketcher.Constraint("Horizontal", 36),
    Sketcher.Constraint("Vertical", 38),
    Sketcher.Constraint("Horizontal", 40),
    Sketcher.Constraint("Vertical", 42),
    Sketcher.Constraint("Vertical", 46),
    Sketcher.Constraint("Vertical", 50),
    Sketcher.Constraint("Horizontal", 52),
    Sketcher.Constraint("Vertical", 54),
    Sketcher.Constraint("Horizontal", 56),
    Sketcher.Constraint("Vertical", 58),
    Sketcher.Constraint("Horizontal", 60),
    Sketcher.Constraint("Horizontal", 64),
    Sketcher.Constraint("Horizontal", 68),
    Sketcher.Constraint("Vertical", 70),
    Sketcher.Constraint("Equal", 1, 3),
    Sketcher.Constraint("Equal", 3, 5),
    Sketcher.Constraint("Equal", 5, 7),
    Sketcher.Constraint("Equal", 7, 9),
    Sketcher.Constraint("Equal", 9, 11),
    Sketcher.Constraint("Equal", 11, 13),
    Sketcher.Constraint("Equal", 13, 15),
    Sketcher.Constraint("Equal", 15, 17),
    Sketcher.Constraint("Equal", 17, 19),
    Sketcher.Constraint("Equal", 19, 21),
    Sketcher.Constraint("Equal", 21, 23),
    Sketcher.Constraint("Equal", 23, 25),
    Sketcher.Constraint("Equal", 25, 27),
    Sketcher.Constraint("Equal", 27, 29),
    Sketcher.Constraint("Equal", 29, 31),
    Sketcher.Constraint("Equal", 31, 33),
    Sketcher.Constraint("Equal", 33, 35),
    Sketcher.Constraint("Equal", 35, 37),
    Sketcher.Constraint("Equal", 37, 39),
    Sketcher.Constraint("Equal", 39, 41),
    Sketcher.Constraint("Equal", 41, 43),
    Sketcher.Constraint("Equal", 43, 45),
    Sketcher.Constraint("Equal", 45, 47),
    Sketcher.Constraint("Equal", 47, 49),
    Sketcher.Constraint("Equal", 49, 53),
    Sketcher.Constraint("Equal", 53, 55),
    Sketcher.Constraint("Equal", 55, 57),
    Sketcher.Constraint("Equal", 57, 59),
    Sketcher.Constraint("Equal", 59, 61),
    Sketcher.Constraint("Equal", 61, 63),
    Sketcher.Constraint("Equal", 63, 65),
    Sketcher.Constraint("Equal", 65, 67),
    Sketcher.Constraint("Equal", 67, 69),
    Sketcher.Constraint("Equal", 69, 71),
    Sketcher.Constraint("Perpendicular", 8, 12),
    Sketcher.Constraint("Parallel", 12, 26),
    Sketcher.Constraint("Perpendicular", 26, 30),
    Sketcher.Constraint("Parallel", 30, 44),
    Sketcher.Constraint("Perpendicular", 44, 48),
    Sketcher.Constraint("Parallel", 48, 62),
    Sketcher.Constraint("Perpendicular", 62, 66),
    Sketcher.Constraint("Horizontal", 25, 3, 31, 3),
    Sketcher.Constraint("Horizontal", 21, 3, 35, 3),
    Sketcher.Constraint("Horizontal", 17, 3, 39, 3),
    Sketcher.Constraint("Horizontal", 13, 3, 43, 3),
    Sketcher.Constraint("Horizontal", 11, 3, 45, 3),
    Sketcher.Constraint("Horizontal", 9, 3, 47, 3),
    Sketcher.Constraint("Horizontal", 7, 3, 49, 3),
    Sketcher.Constraint("Horizontal", 5, 3, 53, 3),
    Sketcher.Constraint("Horizontal", 1, 3, 55, 3),
    Sketcher.Constraint("Horizontal", 61, 3, 67, 3),
    Sketcher.Constraint("Horizontal", 26, 2, 29, 1),
    Sketcher.Constraint("Vertical", 7, 3, 13, 3),
    Sketcher.Constraint("Vertical", 3, 3, 17, 3),
    Sketcher.Constraint("Vertical", 39, 3, 53, 3),
    Sketcher.Constraint("Vertical", 35, 3, 57, 3),
    Sketcher.Constraint("Vertical", 31, 3, 61, 3),
    Sketcher.Constraint("Vertical", 29, 3, 63, 3),
    Sketcher.Constraint("Vertical", 27, 3, 65, 3),
    Sketcher.Constraint("Vertical", 23, 3, 69, 3),
    Sketcher.Constraint("Equal", 24, 32),
    Sketcher.Constraint("Equal", 20, 36),
    Sketcher.Constraint("Equal", 16, 40),
    Sketcher.Constraint("Equal", 56, 2),
    Sketcher.Constraint("Equal", 68, 6),
    Sketcher.Constraint("Equal", 64, 10),
    Sketcher.Constraint("Equal", 6, 14),
    Sketcher.Constraint("Equal", 2, 18),
    Sketcher.Constraint("Equal", 40, 22),
    Sketcher.Constraint("Equal", 34, 58),
    Sketcher.Constraint("Equal", 12, 26),
    Sketcher.Constraint("Radius", 1, 0.5),
    Sketcher.Constraint("Radius", 51, 0.3),
    Sketcher.Constraint("DistanceX", 4, 2, 4, 1, 0.5),
    Sketcher.Constraint("DistanceX", 0, 1, 0, 2, 6.35),
    Sketcher.Constraint("Distance", 8, 5.501291),
    Sketcher.Constraint("DistanceX", 24, 1, 24, 2, 3.082233),
    Sketcher.Constraint("DistanceX", 28, 2, 28, 1, 4.684466),
    Sketcher.Constraint("DistanceY", 1, 3, -1, 1, 9.247628),
    Sketcher.Constraint("DistanceX", -1, 1, 25, 3, 6.875909),
])
sketch2.setExpression("Constraints[171]", "Params.sketch2_radius")
sketch2.setExpression("Constraints[172]", "Params.sketch2_radius2")
sketch2.setExpression("Constraints[173]", "Params.sketch2_width")
sketch2.setExpression("Constraints[174]", "Params.sketch2_width2")
pad2 = body2.newObject("PartDesign::Pad", "Pad001")
pad2.Profile = sketch2
pad2.setExpression("Length", "Params.pad2_length")

doc.recompute()
